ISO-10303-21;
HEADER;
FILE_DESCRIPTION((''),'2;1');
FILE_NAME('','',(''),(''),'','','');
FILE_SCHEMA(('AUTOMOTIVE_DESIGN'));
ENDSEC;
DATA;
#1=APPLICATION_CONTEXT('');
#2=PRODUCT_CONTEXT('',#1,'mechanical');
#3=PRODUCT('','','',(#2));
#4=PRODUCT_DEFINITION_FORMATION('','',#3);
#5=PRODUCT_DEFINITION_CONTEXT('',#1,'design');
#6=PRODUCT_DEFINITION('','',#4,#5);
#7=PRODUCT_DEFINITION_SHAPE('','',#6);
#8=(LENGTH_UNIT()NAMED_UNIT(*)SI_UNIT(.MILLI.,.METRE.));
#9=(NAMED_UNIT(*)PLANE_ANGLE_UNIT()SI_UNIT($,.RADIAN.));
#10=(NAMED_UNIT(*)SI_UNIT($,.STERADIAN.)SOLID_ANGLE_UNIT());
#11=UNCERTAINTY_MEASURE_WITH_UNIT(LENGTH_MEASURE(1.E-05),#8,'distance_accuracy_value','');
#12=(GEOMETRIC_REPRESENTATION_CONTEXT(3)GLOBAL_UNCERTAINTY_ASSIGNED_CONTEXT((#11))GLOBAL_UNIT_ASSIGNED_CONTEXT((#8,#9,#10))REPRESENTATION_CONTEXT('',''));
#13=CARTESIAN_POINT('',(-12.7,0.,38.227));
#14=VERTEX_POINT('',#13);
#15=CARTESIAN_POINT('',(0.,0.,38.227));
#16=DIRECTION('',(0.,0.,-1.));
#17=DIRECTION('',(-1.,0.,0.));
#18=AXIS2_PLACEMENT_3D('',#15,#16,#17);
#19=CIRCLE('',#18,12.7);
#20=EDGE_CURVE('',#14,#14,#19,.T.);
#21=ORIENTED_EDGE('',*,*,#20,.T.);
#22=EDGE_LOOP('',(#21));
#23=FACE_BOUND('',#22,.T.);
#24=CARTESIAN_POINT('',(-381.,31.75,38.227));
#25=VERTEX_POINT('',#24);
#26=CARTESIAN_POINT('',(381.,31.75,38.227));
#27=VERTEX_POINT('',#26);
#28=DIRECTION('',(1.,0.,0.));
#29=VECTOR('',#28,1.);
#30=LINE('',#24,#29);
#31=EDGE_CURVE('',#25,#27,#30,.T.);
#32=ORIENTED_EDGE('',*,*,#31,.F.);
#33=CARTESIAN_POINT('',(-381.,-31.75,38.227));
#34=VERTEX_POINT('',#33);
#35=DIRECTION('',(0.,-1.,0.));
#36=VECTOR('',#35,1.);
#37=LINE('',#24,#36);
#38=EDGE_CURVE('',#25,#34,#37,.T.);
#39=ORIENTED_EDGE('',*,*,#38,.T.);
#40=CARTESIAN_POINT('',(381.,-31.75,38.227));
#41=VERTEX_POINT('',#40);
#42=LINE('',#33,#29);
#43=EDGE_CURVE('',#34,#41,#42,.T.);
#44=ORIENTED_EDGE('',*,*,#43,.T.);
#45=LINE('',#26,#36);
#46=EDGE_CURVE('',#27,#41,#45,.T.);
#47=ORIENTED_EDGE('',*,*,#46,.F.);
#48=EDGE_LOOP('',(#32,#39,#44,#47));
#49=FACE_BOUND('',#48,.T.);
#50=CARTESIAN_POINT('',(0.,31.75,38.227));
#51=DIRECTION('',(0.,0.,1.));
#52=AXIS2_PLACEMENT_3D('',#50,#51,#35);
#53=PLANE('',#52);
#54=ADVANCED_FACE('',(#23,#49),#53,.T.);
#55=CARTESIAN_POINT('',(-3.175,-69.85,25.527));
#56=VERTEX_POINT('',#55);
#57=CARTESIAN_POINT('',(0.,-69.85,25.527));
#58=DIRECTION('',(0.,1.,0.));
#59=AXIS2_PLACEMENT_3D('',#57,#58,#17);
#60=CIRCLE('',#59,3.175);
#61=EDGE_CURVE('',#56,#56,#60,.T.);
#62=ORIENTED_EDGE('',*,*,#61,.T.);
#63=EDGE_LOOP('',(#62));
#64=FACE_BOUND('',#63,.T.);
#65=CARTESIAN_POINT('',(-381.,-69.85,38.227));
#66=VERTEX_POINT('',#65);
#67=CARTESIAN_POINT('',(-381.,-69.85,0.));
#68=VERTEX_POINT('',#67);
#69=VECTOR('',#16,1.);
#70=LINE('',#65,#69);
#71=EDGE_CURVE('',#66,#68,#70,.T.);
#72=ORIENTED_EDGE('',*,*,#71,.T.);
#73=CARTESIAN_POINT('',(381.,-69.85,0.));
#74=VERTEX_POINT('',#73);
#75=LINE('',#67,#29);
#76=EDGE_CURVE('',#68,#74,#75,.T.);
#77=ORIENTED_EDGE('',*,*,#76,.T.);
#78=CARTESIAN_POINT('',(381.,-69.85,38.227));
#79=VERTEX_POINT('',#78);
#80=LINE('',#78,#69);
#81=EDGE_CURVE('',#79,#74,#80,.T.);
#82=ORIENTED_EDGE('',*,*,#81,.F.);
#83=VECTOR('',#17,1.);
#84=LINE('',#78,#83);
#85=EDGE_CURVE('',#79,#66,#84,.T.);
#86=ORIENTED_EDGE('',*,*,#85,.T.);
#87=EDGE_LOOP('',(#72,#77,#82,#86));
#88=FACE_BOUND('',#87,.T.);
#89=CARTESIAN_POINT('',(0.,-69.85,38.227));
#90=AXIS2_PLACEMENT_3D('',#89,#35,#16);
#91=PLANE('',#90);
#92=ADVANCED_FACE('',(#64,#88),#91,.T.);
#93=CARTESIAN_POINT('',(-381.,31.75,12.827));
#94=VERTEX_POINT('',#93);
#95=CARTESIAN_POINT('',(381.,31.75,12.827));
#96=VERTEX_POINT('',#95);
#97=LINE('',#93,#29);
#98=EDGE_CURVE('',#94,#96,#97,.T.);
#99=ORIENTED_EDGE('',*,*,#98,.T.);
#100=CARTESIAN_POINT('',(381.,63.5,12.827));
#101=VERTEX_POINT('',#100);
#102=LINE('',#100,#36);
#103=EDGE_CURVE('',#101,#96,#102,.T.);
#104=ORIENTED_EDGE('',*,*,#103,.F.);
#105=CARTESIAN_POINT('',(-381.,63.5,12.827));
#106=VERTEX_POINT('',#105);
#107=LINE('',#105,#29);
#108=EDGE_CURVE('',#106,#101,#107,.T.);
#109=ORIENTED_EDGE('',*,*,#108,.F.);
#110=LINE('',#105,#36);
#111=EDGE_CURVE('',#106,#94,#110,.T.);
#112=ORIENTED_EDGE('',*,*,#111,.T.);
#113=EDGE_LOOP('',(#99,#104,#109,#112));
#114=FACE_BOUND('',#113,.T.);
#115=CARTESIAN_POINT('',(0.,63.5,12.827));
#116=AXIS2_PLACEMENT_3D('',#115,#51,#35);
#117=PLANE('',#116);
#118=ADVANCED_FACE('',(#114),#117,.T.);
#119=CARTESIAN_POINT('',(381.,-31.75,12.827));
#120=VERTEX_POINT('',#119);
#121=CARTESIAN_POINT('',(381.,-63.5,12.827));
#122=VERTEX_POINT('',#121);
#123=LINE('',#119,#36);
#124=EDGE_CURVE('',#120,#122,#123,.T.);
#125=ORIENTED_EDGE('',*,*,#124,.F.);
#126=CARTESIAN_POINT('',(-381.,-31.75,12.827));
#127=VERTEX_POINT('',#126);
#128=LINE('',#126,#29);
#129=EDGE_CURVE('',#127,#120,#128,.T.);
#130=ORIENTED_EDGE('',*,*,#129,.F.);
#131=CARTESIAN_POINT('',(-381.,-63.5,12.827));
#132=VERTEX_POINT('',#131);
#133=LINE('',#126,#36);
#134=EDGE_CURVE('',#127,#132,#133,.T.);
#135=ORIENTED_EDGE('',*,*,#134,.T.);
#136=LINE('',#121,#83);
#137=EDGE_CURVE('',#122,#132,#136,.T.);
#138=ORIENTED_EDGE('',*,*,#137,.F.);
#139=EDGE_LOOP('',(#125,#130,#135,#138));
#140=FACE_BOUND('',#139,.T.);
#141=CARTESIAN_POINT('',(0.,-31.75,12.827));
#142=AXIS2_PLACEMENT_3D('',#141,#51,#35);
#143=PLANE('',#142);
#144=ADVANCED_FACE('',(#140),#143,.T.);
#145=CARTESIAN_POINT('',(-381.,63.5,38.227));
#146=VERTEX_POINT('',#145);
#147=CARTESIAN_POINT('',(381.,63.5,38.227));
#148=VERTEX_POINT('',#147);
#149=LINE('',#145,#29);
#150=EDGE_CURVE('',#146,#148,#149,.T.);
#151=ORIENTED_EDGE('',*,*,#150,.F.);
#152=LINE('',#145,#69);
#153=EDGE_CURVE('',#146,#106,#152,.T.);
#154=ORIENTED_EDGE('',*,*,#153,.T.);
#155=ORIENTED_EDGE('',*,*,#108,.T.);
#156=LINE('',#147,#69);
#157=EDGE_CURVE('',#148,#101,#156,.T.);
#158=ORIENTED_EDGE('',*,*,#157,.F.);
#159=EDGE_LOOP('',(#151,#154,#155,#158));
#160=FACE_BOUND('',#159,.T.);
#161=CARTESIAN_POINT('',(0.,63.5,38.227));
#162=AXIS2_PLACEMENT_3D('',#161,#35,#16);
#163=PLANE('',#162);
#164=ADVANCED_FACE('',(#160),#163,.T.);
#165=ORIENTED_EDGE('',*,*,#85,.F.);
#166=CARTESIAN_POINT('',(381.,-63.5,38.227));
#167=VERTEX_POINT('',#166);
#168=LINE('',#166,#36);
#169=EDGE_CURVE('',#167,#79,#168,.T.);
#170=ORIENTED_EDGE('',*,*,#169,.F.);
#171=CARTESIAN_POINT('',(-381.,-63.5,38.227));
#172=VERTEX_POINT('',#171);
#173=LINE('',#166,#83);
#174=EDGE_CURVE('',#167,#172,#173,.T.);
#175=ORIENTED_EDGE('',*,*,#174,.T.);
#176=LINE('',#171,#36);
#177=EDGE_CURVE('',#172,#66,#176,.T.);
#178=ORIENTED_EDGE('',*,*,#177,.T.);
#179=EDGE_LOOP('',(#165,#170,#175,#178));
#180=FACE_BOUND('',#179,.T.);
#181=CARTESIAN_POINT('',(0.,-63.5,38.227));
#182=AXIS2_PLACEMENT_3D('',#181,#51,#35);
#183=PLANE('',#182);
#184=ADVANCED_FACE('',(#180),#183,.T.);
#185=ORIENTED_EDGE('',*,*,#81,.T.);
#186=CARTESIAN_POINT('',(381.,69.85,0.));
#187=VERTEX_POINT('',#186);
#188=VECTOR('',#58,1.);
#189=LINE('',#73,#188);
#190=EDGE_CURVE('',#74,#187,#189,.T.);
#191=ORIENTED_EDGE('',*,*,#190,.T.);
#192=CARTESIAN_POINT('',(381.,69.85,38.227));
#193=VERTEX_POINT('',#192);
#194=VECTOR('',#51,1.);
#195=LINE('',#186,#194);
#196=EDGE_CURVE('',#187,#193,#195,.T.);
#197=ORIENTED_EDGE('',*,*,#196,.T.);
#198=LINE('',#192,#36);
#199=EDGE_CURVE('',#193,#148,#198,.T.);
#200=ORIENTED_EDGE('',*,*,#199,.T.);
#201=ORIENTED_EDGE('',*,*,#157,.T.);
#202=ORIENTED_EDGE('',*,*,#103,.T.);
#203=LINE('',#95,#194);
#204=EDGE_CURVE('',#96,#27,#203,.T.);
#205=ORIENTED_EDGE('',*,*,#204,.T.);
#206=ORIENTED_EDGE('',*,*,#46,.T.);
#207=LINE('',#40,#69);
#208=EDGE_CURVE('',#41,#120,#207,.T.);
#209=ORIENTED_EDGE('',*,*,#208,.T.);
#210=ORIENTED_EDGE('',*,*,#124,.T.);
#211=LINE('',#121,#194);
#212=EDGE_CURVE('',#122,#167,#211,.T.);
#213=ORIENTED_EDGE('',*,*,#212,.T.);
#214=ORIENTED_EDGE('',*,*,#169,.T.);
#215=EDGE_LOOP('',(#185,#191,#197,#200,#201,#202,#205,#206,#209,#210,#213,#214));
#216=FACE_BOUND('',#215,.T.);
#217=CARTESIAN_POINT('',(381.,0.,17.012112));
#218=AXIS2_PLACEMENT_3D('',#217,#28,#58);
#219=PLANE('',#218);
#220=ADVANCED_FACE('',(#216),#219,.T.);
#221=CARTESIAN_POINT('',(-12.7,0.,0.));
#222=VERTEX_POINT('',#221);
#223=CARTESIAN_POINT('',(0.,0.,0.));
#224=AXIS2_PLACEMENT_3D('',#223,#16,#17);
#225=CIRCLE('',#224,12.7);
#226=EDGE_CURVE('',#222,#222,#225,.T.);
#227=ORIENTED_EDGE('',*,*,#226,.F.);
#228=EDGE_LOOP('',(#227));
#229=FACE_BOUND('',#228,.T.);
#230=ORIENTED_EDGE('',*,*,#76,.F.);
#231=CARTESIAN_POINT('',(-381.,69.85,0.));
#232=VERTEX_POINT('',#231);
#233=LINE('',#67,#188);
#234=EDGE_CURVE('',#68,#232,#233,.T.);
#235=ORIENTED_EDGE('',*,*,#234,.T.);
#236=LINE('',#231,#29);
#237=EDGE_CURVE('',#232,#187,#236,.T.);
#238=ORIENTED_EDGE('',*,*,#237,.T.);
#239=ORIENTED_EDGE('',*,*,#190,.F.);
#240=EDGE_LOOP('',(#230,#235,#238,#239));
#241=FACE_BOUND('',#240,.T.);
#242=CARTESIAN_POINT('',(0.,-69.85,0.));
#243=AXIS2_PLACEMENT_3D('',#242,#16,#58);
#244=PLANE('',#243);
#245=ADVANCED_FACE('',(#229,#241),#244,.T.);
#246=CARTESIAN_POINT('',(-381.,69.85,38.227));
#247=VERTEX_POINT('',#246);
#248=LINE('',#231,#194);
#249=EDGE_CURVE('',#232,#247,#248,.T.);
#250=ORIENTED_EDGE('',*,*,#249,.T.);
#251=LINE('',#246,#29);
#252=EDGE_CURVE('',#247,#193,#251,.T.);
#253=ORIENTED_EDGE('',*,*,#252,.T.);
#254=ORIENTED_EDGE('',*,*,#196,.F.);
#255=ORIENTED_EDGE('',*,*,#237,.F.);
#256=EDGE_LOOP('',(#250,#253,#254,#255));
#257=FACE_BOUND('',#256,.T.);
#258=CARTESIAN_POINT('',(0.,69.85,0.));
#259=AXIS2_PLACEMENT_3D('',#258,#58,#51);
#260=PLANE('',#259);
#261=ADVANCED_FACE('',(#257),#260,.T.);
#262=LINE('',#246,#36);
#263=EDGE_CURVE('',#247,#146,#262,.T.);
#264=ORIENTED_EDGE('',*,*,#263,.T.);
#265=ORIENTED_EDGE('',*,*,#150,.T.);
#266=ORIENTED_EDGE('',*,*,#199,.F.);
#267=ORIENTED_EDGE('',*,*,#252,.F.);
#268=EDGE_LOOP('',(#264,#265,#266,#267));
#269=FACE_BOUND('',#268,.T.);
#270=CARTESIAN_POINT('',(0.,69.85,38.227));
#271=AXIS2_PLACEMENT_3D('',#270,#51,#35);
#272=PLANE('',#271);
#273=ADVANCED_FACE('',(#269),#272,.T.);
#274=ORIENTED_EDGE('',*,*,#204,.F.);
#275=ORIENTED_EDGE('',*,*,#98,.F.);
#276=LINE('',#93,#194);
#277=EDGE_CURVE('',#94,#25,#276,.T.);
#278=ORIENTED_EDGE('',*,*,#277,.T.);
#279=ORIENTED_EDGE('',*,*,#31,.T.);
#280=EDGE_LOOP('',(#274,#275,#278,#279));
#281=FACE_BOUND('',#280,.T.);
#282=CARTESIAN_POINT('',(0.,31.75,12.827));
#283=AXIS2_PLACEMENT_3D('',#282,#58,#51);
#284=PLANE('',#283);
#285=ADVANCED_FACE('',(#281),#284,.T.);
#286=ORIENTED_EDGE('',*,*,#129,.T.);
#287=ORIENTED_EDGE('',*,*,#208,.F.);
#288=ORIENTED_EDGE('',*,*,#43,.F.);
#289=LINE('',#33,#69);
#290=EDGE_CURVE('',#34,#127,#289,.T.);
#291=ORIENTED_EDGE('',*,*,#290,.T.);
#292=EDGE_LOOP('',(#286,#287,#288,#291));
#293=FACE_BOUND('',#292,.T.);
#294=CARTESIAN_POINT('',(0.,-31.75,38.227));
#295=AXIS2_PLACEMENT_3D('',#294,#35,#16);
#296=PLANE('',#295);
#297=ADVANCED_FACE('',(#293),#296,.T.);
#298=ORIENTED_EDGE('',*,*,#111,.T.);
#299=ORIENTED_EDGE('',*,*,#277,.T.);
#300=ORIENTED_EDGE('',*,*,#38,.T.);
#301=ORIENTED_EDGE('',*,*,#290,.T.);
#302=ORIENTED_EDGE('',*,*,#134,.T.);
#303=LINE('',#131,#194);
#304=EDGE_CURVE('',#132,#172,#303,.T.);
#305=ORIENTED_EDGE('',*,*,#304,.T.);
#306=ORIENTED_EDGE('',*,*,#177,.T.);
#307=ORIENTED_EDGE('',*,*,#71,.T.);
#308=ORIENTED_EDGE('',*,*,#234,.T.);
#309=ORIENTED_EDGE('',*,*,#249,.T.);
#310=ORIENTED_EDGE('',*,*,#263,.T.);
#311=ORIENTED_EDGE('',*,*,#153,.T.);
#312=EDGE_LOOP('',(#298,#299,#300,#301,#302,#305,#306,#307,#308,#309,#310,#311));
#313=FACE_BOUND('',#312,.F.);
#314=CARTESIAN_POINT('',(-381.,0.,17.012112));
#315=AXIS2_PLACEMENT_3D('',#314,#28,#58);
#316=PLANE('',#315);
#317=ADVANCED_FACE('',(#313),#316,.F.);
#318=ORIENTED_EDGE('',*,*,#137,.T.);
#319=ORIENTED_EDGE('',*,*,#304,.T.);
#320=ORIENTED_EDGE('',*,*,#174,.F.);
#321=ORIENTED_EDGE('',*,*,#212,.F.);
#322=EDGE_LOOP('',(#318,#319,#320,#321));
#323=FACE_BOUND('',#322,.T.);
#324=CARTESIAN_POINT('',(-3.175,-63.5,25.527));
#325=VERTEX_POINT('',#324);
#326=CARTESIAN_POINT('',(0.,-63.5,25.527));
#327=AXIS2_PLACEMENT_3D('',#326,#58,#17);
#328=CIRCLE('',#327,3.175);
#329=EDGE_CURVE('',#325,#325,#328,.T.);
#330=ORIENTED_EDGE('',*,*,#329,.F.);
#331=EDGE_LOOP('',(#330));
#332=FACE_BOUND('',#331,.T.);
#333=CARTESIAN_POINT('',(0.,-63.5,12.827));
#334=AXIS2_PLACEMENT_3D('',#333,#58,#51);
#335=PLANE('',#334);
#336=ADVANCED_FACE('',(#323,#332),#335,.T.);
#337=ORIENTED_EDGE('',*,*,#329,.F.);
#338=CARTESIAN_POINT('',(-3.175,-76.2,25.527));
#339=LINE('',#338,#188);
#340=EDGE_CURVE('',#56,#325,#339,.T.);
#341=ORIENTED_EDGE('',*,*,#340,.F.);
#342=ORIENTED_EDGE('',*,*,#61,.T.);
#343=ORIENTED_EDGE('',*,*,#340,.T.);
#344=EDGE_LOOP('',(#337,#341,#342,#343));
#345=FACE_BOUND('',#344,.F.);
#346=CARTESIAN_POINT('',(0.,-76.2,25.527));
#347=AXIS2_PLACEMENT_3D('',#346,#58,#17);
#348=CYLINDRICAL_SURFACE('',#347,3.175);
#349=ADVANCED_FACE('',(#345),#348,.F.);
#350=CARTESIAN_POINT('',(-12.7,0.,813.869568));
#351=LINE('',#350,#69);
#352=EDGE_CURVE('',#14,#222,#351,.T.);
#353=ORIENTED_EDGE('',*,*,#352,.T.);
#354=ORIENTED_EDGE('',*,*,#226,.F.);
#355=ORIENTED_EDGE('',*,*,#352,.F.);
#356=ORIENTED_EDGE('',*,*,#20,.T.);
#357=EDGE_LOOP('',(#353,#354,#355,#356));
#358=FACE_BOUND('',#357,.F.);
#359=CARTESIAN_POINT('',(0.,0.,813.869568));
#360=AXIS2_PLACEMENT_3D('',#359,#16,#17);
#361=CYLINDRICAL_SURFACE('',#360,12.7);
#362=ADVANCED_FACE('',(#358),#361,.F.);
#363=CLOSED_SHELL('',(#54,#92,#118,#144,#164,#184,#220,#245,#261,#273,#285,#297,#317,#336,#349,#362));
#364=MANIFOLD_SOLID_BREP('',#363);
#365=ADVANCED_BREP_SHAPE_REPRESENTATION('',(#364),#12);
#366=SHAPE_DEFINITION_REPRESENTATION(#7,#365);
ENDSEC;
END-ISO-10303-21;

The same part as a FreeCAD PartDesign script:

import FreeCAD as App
import Part
import Sketcher
Q = App.Units.Quantity


def add_polygon(sketch, points):
    """Adds a closed chain of lines whose ends are joined by coincident constraints."""
    first, n = sketch.GeometryCount, len(points)
    for a, b in zip(points, points[1:] + points[:1]):
        sketch.addGeometry(Part.LineSegment(App.Vector(*a, 0), App.Vector(*b, 0)), False)
    for i in range(n):
        sketch.addConstraint(Sketcher.Constraint("Coincident", first + i, 2, first + (i + 1) % n, 1))

doc = App.newDocument("Part")
body = doc.addObject("PartDesign::Body", "Body")

# Sketch on YZ plane
sketch1 = body.newObject("Sketcher::SketchObject", "Sketch")
sketch1.AttachmentSupport = (doc.getObject("YZ_Plane"), [""])
sketch1.MapMode = "FlatFace"
add_polygon(sketch1, [(-70, 38), (-70, 0), (70, 0), (70, 38), (64, 38), (64, 13), (32, 13), (32, 38), (-32, 38), (-32, 13), (-64, 13), (-64, 38)])  # lines 0-11
sketch1.addConstraint([
    Sketcher.Constraint("Vertical", 0),
    Sketcher.Constraint("Horizontal", 1),
    Sketcher.Constraint("Vertical", 2),
    Sketcher.Constraint("Horizontal", 3),
    Sketcher.Constraint("Vertical", 4),
    Sketcher.Constraint("Horizontal", 5),
    Sketcher.Constraint("Vertical", 6),
    Sketcher.Constraint("Horizontal", 7),
    Sketcher.Constraint("Vertical", 8),
    Sketcher.Constraint("Horizontal", 9),
    Sketcher.Constraint("Vertical", 10),
    Sketcher.Constraint("Horizontal", 11),
    Sketcher.Constraint("Symmetric", 0, 2, 1, 2, -1, 1),
    Sketcher.Constraint("Symmetric", 5, 2, 8, 2, -2),
    Sketcher.Constraint("Symmetric", 3, 2, 10, 2, -2),
    Sketcher.Constraint("Horizontal", 3, 2, 6, 2),
    Sketcher.Constraint("DistanceY", 4, 2, 4, 1, Q("1 in")),
    Sketcher.Constraint("DistanceX", 1, 1, 1, 2, Q("5.5 in")),
    Sketcher.Constraint("DistanceX", 7, 2, 7, 1, Q("2.5 in")),
    Sketcher.Constraint("DistanceX", 3, 2, 3, 1, Q("0.25 in")),
    Sketcher.Constraint("DistanceY", 0, 2, 0, 1, Q("1.505 in")),
])
pad1 = body.newObject("PartDesign::Pad", "Pad")
pad1.Profile = sketch1
pad1.Type = "TwoLengths"
pad1.Length = Q("15 in")
pad1.Length2 = Q("15 in")

# Sketch on XZ plane
sketch2 = body.newObject("Sketcher::SketchObject", "Sketch001")
sketch2.AttachmentSupport = (doc.getObject("XZ_Plane"), [""])
sketch2.MapMode = "FlatFace"
sketch2.AttachmentOffset = App.Placement(App.Vector(0, 0, 2.75 * 25.4), App.Rotation())
sketch2.addGeometry(Part.Circle(App.Vector(0, 25.5, 0), App.Vector(0, 0, 1), 3.2), False)
sketch2.addConstraint([
    Sketcher.Constraint("PointOnObject", 0, 3, -2),
    Sketcher.Constraint("Diameter", 0, Q("0.25 in")),
    Sketcher.Constraint("DistanceY", -1, 1, 0, 3, Q("1.005 in")),
])
doc.recompute()
hole = body.newObject("PartDesign::Hole", "Hole")
hole.Profile = sketch2
hole.ThreadType = "None"
hole.Diameter = Q("0.25 in")
hole.DepthType = "Dimension"
hole.Depth = Q("0.25 in")
hole.DrillPoint = "Flat"

# Sketch on XY plane
sketch3 = body.newObject("Sketcher::SketchObject", "Sketch002")
sketch3.AttachmentSupport = (doc.getObject("XY_Plane"), [""])
sketch3.MapMode = "FlatFace"
sketch3.AttachmentOffset = App.Placement(App.Vector(0, 0, 1.505 * 25.4), App.Rotation())
sketch3.addGeometry(Part.Circle(App.Vector(0, 0, 0), App.Vector(0, 0, 1), 13), False)
sketch3.addConstraint([
    Sketcher.Constraint("Coincident", 0, 3, -1, 1),
    Sketcher.Constraint("Diameter", 0, Q("1 in")),
])
doc.recompute()
hole2 = body.newObject("PartDesign::Hole", "Hole001")
hole2.Profile = sketch3
hole2.ThreadType = "None"
hole2.Diameter = Q("1 in")
hole2.DepthType = "ThroughAll"

doc.recompute()
